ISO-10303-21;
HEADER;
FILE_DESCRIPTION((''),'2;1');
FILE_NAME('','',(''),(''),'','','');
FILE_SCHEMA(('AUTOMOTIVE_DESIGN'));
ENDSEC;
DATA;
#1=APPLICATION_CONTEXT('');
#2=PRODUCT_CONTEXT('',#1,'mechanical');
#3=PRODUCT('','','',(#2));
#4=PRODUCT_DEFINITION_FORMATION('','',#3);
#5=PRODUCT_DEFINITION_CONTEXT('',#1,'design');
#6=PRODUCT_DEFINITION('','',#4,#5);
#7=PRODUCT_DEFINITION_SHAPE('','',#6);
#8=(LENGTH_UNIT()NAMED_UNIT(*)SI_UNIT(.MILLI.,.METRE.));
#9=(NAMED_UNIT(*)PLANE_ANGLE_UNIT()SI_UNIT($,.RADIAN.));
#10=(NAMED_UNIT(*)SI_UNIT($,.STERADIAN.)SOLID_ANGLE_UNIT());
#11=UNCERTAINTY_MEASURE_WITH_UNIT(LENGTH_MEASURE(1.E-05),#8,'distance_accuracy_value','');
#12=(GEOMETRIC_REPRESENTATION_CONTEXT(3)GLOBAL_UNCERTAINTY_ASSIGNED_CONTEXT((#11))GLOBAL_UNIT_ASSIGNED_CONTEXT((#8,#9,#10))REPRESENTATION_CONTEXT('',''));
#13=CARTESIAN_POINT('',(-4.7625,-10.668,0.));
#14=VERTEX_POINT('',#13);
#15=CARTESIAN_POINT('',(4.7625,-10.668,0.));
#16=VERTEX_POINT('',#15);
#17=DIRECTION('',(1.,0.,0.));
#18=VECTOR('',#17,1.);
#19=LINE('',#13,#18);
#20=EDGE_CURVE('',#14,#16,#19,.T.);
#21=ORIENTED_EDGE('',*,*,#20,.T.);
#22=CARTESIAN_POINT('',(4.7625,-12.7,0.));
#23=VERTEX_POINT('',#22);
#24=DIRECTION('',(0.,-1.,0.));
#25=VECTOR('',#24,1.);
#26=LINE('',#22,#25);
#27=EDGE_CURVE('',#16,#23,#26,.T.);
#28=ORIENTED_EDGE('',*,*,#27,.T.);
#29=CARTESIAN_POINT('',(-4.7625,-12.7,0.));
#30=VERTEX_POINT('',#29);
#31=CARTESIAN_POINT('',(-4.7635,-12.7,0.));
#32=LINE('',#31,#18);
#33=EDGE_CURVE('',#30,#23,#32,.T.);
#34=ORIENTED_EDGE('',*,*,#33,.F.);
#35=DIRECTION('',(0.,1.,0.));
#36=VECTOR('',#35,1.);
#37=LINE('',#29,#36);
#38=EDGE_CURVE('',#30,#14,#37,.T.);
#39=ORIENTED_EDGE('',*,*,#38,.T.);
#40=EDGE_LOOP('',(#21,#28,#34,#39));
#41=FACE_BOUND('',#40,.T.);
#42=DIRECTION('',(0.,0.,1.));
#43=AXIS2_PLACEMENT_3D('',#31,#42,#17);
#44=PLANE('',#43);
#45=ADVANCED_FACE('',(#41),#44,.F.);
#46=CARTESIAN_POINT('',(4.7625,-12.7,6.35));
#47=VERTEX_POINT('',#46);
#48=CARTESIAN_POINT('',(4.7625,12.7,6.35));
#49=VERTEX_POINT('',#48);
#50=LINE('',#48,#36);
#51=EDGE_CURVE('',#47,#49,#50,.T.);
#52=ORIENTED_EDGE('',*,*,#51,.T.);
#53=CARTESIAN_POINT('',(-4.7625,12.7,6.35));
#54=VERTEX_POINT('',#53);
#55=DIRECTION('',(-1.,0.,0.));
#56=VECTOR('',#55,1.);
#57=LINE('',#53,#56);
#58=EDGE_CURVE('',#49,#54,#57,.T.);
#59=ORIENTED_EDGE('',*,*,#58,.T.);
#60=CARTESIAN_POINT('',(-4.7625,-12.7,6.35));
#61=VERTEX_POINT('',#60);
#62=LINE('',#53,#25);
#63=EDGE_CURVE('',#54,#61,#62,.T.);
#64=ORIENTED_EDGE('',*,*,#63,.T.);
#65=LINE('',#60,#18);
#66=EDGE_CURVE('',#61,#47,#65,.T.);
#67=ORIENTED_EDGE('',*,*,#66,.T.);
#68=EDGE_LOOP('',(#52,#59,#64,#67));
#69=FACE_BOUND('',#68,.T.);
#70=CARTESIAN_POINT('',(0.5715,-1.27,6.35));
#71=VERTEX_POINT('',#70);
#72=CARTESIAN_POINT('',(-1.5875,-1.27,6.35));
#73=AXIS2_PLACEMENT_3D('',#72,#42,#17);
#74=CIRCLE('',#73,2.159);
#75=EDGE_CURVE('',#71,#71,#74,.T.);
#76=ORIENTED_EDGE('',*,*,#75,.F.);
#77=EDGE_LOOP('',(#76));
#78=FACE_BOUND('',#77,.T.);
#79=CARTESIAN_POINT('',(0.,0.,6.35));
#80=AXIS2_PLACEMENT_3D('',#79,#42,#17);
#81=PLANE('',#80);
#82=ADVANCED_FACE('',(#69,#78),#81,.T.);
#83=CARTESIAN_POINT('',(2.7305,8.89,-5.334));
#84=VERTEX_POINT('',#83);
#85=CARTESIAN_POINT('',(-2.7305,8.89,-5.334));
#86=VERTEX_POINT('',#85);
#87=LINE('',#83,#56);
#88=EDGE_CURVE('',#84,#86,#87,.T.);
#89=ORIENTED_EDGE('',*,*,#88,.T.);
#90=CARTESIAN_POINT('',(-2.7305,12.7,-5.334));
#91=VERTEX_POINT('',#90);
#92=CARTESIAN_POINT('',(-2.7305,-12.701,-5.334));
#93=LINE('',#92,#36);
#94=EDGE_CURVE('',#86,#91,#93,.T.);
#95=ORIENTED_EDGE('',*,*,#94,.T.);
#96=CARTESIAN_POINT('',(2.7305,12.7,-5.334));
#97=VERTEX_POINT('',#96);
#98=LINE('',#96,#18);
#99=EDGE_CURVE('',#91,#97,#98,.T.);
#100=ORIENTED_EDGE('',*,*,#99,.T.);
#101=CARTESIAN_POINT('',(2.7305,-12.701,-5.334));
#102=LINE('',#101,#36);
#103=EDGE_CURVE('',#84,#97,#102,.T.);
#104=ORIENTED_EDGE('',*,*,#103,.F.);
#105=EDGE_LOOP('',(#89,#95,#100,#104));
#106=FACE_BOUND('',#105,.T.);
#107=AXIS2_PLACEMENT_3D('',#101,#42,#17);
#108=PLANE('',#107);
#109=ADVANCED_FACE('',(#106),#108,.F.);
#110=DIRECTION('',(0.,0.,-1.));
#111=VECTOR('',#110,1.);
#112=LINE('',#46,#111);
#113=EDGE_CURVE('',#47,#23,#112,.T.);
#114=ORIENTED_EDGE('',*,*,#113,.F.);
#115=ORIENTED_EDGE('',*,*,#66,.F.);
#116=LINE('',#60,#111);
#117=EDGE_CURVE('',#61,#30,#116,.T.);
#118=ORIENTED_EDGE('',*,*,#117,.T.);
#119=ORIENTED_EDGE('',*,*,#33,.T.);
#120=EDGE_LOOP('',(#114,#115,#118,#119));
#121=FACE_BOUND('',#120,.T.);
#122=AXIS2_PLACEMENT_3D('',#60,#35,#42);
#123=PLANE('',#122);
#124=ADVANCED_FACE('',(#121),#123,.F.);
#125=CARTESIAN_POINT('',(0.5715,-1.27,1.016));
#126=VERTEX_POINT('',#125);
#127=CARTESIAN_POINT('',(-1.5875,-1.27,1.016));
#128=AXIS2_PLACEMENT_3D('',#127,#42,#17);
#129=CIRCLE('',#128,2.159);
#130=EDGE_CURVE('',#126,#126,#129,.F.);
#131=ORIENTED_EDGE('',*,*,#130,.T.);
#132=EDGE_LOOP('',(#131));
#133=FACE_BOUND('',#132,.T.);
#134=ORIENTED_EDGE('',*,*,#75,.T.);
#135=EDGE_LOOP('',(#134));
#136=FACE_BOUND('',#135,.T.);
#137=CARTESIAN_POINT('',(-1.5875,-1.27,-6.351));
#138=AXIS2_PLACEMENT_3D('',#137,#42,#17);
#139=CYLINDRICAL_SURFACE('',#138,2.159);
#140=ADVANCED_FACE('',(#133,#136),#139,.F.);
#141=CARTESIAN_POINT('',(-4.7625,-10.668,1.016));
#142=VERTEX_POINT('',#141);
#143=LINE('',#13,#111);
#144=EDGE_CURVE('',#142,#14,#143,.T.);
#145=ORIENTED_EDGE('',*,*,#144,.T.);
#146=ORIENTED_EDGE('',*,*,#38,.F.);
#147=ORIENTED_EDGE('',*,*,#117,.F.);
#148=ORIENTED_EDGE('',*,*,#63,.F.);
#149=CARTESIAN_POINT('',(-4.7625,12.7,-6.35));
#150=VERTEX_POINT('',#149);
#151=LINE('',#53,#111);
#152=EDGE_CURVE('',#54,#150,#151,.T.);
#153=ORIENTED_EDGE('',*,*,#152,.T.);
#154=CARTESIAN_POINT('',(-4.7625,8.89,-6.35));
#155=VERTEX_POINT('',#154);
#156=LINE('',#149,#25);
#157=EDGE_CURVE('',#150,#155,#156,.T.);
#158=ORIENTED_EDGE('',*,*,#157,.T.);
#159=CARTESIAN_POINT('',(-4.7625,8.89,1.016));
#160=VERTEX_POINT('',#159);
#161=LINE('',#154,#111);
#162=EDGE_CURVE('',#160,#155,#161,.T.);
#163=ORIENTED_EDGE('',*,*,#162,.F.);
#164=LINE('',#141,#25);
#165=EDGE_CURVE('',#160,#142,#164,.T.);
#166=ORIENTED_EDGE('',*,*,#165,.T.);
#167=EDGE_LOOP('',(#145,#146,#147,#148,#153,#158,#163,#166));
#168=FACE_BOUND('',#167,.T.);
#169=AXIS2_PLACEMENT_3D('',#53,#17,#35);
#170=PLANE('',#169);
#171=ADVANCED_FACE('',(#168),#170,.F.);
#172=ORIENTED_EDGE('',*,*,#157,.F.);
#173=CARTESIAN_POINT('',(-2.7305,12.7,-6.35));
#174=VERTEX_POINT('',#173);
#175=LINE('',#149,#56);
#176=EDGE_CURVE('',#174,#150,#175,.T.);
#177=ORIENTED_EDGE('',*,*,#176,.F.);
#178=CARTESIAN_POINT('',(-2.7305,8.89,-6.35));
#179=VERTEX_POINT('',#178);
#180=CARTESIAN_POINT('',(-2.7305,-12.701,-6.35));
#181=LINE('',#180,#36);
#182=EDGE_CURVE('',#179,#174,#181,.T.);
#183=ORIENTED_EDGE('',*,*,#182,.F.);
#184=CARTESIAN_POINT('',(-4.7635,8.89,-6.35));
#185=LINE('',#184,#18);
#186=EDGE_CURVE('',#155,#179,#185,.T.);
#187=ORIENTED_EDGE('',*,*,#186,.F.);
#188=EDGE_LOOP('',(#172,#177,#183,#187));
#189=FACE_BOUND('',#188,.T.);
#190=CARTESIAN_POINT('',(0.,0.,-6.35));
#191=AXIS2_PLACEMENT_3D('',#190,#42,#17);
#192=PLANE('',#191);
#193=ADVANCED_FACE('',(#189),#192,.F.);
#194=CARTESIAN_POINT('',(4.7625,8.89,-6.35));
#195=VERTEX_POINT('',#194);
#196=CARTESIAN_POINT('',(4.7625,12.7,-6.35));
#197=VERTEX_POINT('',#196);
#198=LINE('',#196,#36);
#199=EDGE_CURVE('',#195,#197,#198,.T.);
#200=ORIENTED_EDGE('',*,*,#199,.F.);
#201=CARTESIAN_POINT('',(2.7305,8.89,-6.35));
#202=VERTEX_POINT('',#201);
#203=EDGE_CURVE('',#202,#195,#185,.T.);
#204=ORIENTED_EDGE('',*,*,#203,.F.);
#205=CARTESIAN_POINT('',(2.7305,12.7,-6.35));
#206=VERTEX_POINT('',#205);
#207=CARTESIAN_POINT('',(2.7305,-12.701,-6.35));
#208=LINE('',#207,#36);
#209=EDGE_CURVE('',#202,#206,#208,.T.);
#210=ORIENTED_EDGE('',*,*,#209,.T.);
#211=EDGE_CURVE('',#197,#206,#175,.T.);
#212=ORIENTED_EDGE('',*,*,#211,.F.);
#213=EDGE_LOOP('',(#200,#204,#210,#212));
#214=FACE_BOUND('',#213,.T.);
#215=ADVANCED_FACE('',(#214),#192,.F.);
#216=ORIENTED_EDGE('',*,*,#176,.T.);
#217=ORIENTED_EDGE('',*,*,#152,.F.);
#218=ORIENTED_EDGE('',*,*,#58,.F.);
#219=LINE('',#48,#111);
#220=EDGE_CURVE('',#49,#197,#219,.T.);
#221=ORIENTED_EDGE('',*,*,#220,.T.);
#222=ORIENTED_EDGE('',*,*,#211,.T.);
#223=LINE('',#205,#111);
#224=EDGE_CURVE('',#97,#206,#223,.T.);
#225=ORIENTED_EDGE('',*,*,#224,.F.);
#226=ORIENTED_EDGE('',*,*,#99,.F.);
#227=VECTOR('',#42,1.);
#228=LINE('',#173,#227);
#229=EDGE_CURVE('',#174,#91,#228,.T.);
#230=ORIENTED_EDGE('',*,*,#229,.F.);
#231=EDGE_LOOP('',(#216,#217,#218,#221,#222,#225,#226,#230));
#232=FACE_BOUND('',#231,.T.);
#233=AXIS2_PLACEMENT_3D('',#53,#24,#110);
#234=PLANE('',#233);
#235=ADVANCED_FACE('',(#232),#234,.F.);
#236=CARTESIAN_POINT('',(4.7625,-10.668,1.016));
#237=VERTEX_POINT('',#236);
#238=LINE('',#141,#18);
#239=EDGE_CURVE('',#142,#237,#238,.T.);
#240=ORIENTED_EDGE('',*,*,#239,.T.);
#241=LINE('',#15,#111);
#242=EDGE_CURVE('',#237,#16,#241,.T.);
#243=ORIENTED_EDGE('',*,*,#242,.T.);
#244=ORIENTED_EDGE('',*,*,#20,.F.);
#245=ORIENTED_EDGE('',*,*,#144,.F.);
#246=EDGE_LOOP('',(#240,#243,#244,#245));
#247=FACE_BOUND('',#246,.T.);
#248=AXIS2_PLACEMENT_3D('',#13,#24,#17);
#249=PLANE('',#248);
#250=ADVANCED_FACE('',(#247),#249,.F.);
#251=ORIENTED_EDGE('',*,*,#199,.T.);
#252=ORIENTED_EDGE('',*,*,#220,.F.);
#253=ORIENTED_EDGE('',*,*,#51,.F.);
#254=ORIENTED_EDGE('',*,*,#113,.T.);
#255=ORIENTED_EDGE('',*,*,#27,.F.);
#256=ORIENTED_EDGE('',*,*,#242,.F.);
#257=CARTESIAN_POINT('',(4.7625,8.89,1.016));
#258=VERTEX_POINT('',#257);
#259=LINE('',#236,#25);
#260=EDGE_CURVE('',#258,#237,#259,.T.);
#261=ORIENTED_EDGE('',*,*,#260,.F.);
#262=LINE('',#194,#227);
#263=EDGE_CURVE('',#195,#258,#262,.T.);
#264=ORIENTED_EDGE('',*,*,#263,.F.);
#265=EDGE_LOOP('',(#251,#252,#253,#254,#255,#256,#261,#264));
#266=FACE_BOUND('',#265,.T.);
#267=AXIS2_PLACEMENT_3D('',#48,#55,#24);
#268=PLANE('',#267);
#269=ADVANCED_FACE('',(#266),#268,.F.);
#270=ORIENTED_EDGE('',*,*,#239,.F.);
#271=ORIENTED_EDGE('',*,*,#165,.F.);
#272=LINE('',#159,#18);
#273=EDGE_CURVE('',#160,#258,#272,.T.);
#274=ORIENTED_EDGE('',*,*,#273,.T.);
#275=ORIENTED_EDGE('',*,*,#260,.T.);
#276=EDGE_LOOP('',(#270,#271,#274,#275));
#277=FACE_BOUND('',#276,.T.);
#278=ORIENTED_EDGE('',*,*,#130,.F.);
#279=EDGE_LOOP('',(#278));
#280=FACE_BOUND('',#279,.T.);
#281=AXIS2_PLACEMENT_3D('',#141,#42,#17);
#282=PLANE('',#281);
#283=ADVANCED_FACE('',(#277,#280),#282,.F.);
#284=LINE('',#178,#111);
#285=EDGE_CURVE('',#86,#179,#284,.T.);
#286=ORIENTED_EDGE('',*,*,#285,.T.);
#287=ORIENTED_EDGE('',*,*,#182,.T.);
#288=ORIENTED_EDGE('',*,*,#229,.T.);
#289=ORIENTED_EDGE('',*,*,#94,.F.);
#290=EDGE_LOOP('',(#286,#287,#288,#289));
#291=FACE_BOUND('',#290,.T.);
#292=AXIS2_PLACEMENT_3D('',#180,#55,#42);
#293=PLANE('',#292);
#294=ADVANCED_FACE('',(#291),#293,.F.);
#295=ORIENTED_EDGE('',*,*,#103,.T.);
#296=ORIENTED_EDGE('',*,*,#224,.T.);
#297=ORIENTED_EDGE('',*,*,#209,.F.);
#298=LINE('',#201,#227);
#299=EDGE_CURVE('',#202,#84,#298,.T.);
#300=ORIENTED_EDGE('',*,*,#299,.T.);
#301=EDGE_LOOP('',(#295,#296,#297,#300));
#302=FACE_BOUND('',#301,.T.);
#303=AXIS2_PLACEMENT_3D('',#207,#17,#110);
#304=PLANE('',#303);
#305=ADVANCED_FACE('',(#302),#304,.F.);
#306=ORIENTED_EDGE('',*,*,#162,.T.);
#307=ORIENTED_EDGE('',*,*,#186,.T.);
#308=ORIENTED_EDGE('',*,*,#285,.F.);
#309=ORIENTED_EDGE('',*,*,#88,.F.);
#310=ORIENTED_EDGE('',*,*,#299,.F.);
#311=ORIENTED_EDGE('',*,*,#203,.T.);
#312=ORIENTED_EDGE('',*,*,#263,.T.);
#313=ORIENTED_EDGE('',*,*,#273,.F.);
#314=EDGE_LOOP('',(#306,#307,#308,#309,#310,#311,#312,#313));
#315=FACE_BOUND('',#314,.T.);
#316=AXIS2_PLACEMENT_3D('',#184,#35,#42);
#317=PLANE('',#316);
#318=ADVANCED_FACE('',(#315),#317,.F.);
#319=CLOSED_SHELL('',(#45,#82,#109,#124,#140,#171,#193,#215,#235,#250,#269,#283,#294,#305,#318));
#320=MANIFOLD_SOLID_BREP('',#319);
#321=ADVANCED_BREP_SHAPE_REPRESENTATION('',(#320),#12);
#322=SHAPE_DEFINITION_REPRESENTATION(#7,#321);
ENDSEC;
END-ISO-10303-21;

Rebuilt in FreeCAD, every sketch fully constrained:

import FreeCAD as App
import Part
import Sketcher
from FreeCAD import Vector
Q = App.Units.Quantity


def add_polygon(sketch, points):
    """Adds a closed chain of lines whose ends are joined by coincident constraints."""
    first, n = sketch.GeometryCount, len(points)
    for a, b in zip(points, points[1:] + points[:1]):
        sketch.addGeometry(Part.LineSegment(App.Vector(*a, 0), App.Vector(*b, 0)), False)
    for i in range(n):
        sketch.addConstraint(Sketcher.Constraint("Coincident", first + i, 2, first + (i + 1) % n, 1))

doc = App.newDocument("Part")
body = doc.addObject("PartDesign::Body", "Body")

# Sketch on XY plane
sketch1 = body.newObject("Sketcher::SketchObject", "Sketch")
sketch1.AttachmentSupport = (doc.getObject("XY_Plane"), [""])
sketch1.MapMode = "FlatFace"
add_polygon(sketch1, [(-4.7625, 12.7), (-4.7625, -12.7), (4.7625, -12.7), (4.7625, 12.7)])  # lines 0-3
sketch1.addConstraint([
    Sketcher.Constraint("Vertical", 0),
    Sketcher.Constraint("Horizontal", 1),
    Sketcher.Constraint("Vertical", 2),
    Sketcher.Constraint("Horizontal", 3),
    Sketcher.Constraint("Symmetric", 0, 2, 2, 2, -1, 1),
    Sketcher.Constraint("DistanceY", 0, 2, 0, 1, Q("1 in")),
    Sketcher.Constraint("DistanceX", 1, 1, 1, 2, Q("0.375 in")),
])
pad1 = body.newObject("PartDesign::Pad", "Pad")
pad1.Profile = sketch1
pad1.Length = Q("0.5 in")
pad1.Midplane = True

# Sketch on YZ plane
sketch2 = body.newObject("Sketcher::SketchObject", "Sketch001")
sketch2.AttachmentSupport = (doc.getObject("YZ_Plane"), [""])
sketch2.MapMode = "FlatFace"
sketch2.AttachmentOffset = App.Placement(Vector(0, 0, 0.1875 * 25.4), App.Rotation())
add_polygon(sketch2, [(8.89, 0), (-12.7, 0), (-12.7, -6.35), (8.89, -6.35)])  # lines 0-3
sketch2.addConstraint([
    Sketcher.Constraint("Horizontal", 0),
    Sketcher.Constraint("Vertical", 1),
    Sketcher.Constraint("Horizontal", 2),
    Sketcher.Constraint("Vertical", 3),
    Sketcher.Constraint("PointOnObject", 0, 2, -1),
    Sketcher.Constraint("DistanceX", 0, 2, 0, 1, Q("0.85 in")),
    Sketcher.Constraint("DistanceY", 1, 2, 1, 1, Q("0.25 in")),
    Sketcher.Constraint("DistanceX", 0, 2, -1, 1, Q("0.5 in")),
])
pocket1 = body.newObject("PartDesign::Pocket", "Pocket")
pocket1.Profile = sketch2
pocket1.Type = "UpToFirst"

# Sketch on XY plane
sketch3 = body.newObject("Sketcher::SketchObject", "Sketch002")
sketch3.AttachmentSupport = (doc.getObject("XY_Plane"), [""])
sketch3.MapMode = "FlatFace"
sketch3.AttachmentOffset = App.Placement(Vector(0, 0, 0.25 * 25.4), App.Rotation())
sketch3.addGeometry(Part.Circle(Vector(-1.5875, -1.27, 0), Vector(0, 0, 1), 2.159), False)
sketch3.addConstraint([
    Sketcher.Constraint("Diameter", 0, Q("0.17 in")),
    Sketcher.Constraint("DistanceY", 0, 3, -1, 1, Q("0.05 in")),
    Sketcher.Constraint("DistanceX", 0, 3, -1, 1, Q("0.0625 in")),
])
pocket2 = body.newObject("PartDesign::Pocket", "Pocket001")
pocket2.Profile = sketch3
pocket2.Type = "UpToFirst"

# Sketch on XZ plane
sketch4 = body.newObject("Sketcher::SketchObject", "Sketch003")
sketch4.AttachmentSupport = (doc.getObject("XZ_Plane"), [""])
sketch4.MapMode = "FlatFace"
sketch4.AttachmentOffset = App.Placement(Vector(0, 0, -0.5 * 25.4), App.Rotation())
add_polygon(sketch4, [(-2.7305, -6.35), (-2.7305, -5.334), (2.7305, -5.334), (2.7305, -6.35)])  # lines 0-3
sketch4.addConstraint([
    Sketcher.Constraint("Vertical", 0),
    Sketcher.Constraint("Horizontal", 1),
    Sketcher.Constraint("Vertical", 2),
    Sketcher.Constraint("Horizontal", 3),
    Sketcher.Constraint("DistanceY", 0, 1, 0, 2, Q("0.04 in")),
    Sketcher.Constraint("DistanceX", 1, 1, 1, 2, Q("0.215 in")),
    Sketcher.Constraint("DistanceY", 0, 2, -1, 1, Q("0.21 in")),
    Sketcher.Constraint("DistanceX", 0, 2, -1, 1, Q("0.1075 in")),
])
pocket3 = body.newObject("PartDesign::Pocket", "Pocket002")
pocket3.Profile = sketch4
pocket3.Type = "UpToFirst"
pocket3.Reversed = True

# Sketch on YZ plane
sketch5 = body.newObject("Sketcher::SketchObject", "Sketch004")
sketch5.AttachmentSupport = (doc.getObject("YZ_Plane"), [""])
sketch5.MapMode = "FlatFace"
sketch5.AttachmentOffset = App.Placement(Vector(0, 0, 0.1875 * 25.4), App.Rotation())
add_polygon(sketch5, [(8.89, 1.016), (-10.668, 1.016), (-10.668, 0), (8.89, 0)])  # lines 0-3
sketch5.addConstraint([
    Sketcher.Constraint("Horizontal", 0),
    Sketcher.Constraint("Vertical", 1),
    Sketcher.Constraint("Horizontal", 2),
    Sketcher.Constraint("Vertical", 3),
    Sketcher.Constraint("PointOnObject", 1, 2, -1),
    Sketcher.Constraint("DistanceX", 0, 2, 0, 1, Q("0.77 in")),
    Sketcher.Constraint("DistanceY", 1, 2, 1, 1, Q("0.04 in")),
    Sketcher.Constraint("DistanceX", 0, 2, -1, 1, Q("0.42 in")),
])
pocket4 = body.newObject("PartDesign::Pocket", "Pocket003")
pocket4.Profile = sketch5
pocket4.Type = "ThroughAll"

doc.recompute()
